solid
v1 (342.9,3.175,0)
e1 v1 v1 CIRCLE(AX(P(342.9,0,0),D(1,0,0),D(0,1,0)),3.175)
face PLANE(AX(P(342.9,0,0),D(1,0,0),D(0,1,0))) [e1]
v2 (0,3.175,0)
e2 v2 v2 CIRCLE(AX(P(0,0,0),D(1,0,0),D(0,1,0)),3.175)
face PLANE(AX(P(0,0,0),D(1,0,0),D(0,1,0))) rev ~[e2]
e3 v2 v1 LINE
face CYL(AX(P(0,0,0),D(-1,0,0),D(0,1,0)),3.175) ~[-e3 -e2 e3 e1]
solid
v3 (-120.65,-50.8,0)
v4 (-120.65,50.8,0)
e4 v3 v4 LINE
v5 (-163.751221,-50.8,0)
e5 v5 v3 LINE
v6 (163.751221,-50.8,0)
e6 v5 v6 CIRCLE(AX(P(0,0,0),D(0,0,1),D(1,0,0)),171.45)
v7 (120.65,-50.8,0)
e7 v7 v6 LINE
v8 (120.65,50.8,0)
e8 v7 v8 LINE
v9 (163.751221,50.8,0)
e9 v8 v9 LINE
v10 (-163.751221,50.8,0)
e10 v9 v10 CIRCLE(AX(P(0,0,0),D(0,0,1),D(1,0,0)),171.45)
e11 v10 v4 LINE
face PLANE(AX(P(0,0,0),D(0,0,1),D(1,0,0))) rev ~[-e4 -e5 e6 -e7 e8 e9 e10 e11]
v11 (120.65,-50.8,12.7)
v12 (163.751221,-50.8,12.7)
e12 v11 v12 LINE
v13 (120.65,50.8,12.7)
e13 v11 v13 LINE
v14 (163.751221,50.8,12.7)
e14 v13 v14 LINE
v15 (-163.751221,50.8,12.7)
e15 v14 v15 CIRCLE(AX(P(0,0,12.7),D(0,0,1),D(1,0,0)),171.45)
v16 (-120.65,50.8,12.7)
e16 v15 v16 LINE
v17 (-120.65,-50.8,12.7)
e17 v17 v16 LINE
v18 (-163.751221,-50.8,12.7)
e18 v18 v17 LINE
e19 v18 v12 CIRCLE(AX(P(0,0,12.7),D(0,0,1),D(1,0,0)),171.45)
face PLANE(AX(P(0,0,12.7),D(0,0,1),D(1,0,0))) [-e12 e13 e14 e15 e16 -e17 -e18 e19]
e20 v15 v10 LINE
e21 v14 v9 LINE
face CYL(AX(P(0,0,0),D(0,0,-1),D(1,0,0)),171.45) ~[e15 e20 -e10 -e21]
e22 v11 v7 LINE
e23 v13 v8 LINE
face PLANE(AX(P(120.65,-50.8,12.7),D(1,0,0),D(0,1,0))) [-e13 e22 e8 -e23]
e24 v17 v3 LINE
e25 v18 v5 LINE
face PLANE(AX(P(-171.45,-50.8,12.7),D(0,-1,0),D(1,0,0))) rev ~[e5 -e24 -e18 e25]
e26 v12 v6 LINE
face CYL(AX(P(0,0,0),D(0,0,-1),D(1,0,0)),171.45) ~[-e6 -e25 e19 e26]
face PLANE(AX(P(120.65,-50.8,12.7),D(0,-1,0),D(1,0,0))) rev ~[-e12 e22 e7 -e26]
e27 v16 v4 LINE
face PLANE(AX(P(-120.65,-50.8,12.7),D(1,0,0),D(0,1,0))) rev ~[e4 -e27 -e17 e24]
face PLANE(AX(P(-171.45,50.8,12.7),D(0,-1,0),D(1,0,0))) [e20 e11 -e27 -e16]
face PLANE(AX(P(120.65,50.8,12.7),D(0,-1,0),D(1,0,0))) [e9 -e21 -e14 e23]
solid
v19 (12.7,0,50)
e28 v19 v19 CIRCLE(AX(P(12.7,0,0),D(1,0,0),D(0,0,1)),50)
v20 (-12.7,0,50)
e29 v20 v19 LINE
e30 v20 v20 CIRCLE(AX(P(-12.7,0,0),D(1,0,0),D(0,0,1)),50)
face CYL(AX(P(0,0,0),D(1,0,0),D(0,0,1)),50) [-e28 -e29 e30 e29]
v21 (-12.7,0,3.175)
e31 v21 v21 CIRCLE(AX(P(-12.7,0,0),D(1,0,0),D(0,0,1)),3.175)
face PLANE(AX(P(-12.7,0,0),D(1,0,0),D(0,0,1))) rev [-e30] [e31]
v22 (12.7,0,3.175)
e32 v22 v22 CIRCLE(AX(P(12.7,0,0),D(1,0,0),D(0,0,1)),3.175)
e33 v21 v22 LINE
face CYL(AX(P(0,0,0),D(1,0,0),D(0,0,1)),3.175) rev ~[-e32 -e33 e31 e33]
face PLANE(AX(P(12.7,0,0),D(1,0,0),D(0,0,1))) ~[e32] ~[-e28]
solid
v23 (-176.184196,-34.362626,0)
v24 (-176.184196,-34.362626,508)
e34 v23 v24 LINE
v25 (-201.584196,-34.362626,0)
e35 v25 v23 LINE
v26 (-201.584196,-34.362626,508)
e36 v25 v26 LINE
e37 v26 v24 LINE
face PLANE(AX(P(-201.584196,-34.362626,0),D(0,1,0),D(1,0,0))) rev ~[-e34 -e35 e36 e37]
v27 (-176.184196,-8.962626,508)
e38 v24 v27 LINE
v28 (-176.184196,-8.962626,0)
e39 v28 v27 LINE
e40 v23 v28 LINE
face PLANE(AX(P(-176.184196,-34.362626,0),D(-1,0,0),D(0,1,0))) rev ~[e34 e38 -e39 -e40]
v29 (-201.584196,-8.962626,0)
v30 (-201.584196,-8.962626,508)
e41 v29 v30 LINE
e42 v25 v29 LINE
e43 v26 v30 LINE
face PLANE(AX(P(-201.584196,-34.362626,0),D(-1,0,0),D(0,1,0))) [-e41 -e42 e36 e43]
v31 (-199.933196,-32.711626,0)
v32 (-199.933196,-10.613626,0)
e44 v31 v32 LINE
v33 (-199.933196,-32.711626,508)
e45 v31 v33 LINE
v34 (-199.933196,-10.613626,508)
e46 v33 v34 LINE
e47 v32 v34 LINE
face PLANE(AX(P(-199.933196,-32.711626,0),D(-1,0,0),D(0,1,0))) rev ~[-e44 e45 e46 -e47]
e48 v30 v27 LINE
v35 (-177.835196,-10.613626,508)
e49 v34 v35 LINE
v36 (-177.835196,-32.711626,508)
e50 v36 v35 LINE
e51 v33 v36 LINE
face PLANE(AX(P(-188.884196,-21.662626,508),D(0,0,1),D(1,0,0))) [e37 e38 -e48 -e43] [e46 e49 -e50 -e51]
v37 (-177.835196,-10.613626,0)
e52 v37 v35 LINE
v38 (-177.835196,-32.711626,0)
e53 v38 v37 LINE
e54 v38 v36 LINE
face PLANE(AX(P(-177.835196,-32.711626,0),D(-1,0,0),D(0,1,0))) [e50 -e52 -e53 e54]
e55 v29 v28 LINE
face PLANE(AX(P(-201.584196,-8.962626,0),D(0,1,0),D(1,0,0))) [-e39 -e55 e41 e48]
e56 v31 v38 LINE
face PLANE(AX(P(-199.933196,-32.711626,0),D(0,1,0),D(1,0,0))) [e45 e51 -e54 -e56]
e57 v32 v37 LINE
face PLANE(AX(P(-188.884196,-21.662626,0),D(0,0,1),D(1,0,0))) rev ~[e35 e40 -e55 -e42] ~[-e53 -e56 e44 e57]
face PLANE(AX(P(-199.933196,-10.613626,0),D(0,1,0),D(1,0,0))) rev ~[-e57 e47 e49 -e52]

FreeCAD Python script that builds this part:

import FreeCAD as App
import Part
import Sketcher
from FreeCAD import Vector
Q = App.Units.Quantity

doc = App.newDocument("Part")
body = doc.addObject("PartDesign::Body", "Body")

# Sketch on XY plane
sketch1 = body.newObject("Sketcher::SketchObject", "Sketch")
sketch1.AttachmentSupport = (doc.getObject("XY_Plane"), [""])
sketch1.MapMode = "FlatFace"
sketch1.addGeometry(Part.Circle(Vector(0, 0, 0), Vector(0, 0, 1), 171.45), False)
sketch1.addConstraint([
    Sketcher.Constraint("Coincident", 0, 3, -1, 1),
    Sketcher.Constraint("Diameter", 0, Q("13.5 in")),
])
pad1 = body.newObject("PartDesign::Pad", "Pad")
pad1.Profile = sketch1
pad1.Length = Q("0.5 in")

# Sketch on XY plane
sketch2 = body.newObject("Sketcher::SketchObject", "Sketch001")
sketch2.AttachmentSupport = (doc.getObject("XY_Plane"), [""])
sketch2.MapMode = "FlatFace"
sketch2.AttachmentOffset = App.Placement(Vector(0, 0, 0.5 * 25.4), App.Rotation())
sketch2.addGeometry([
    Part.LineSegment(Vector(-171.45, 50.8, 0), Vector(-171.45, -50.8, 0)),  # 0
    Part.LineSegment(Vector(-171.45, -50.8, 0), Vector(-120.65, -50.8, 0)),  # 1
    Part.LineSegment(Vector(-120.65, -50.8, 0), Vector(-120.65, 50.8, 0)),  # 2
    Part.LineSegment(Vector(-120.65, 50.8, 0), Vector(-171.45, 50.8, 0)),  # 3
    Part.LineSegment(Vector(120.65, 50.8, 0), Vector(120.65, -50.8, 0)),  # 4
    Part.LineSegment(Vector(120.65, -50.8, 0), Vector(171.45, -50.8, 0)),  # 5
    Part.LineSegment(Vector(171.45, -50.8, 0), Vector(171.45, 50.8, 0)),  # 6
    Part.LineSegment(Vector(171.45, 50.8, 0), Vector(120.65, 50.8, 0)),  # 7
], False)
sketch2.addConstraint([
    Sketcher.Constraint("Coincident", 0, 2, 1, 1),
    Sketcher.Constraint("Coincident", 1, 2, 2, 1),
    Sketcher.Constraint("Coincident", 2, 2, 3, 1),
    Sketcher.Constraint("Coincident", 3, 2, 0, 1),
    Sketcher.Constraint("Coincident", 4, 2, 5, 1),
    Sketcher.Constraint("Coincident", 5, 2, 6, 1),
    Sketcher.Constraint("Coincident", 6, 2, 7, 1),
    Sketcher.Constraint("Coincident", 7, 2, 4, 1),
    Sketcher.Constraint("Vertical", 0),
    Sketcher.Constraint("Horizontal", 1),
    Sketcher.Constraint("Vertical", 2),
    Sketcher.Constraint("Horizontal", 3),
    Sketcher.Constraint("Vertical", 4),
    Sketcher.Constraint("Horizontal", 5),
    Sketcher.Constraint("Vertical", 6),
    Sketcher.Constraint("Horizontal", 7),
    Sketcher.Constraint("Symmetric", 2, 2, 4, 2, -1, 1),
    Sketcher.Constraint("Symmetric", 0, 2, 6, 2, -1, 1),
    Sketcher.Constraint("Horizontal", 1, 2, 4, 2),
    Sketcher.Constraint("DistanceX", 1, 1, 1, 2, Q("2 in")),
    Sketcher.Constraint("DistanceY", 0, 2, 0, 1, Q("4 in")),
    Sketcher.Constraint("DistanceX", 1, 2, 4, 2, Q("9.5 in")),
])
pocket1 = body.newObject("PartDesign::Pocket", "Pocket")
pocket1.Profile = sketch2
pocket1.Type = "ThroughAll"
body2 = doc.addObject("PartDesign::Body", "Body001")

# Sketch on XZ plane
sketch3 = body2.newObject("Sketcher::SketchObject", "Sketch002")
sketch3.AttachmentSupport = (doc.getObject("XZ_Plane001"), [""])
sketch3.MapMode = "FlatFace"
sketch3.addGeometry([
    Part.LineSegment(Vector(-12.7, 50, 0), Vector(-12.7, 3.175, 0)),
    Part.LineSegment(Vector(-12.7, 3.175, 0), Vector(12.7, 3.175, 0)),
    Part.LineSegment(Vector(12.7, 3.175, 0), Vector(12.7, 50, 0)),
    Part.LineSegment(Vector(12.7, 50, 0), Vector(-12.7, 50, 0)),
], False)
sketch3.addConstraint([
    Sketcher.Constraint("Coincident", 0, 2, 1, 1),
    Sketcher.Constraint("Coincident", 1, 2, 2, 1),
    Sketcher.Constraint("Coincident", 2, 2, 3, 1),
    Sketcher.Constraint("Coincident", 3, 2, 0, 1),
    Sketcher.Constraint("Vertical", 0),
    Sketcher.Constraint("Horizontal", 1),
    Sketcher.Constraint("Vertical", 2),
    Sketcher.Constraint("Horizontal", 3),
    Sketcher.Constraint("DistanceX", 1, 1, 1, 2, Q("1 in")),
    Sketcher.Constraint("DistanceX", 0, 2, -1, 1, Q("0.5 in")),
    Sketcher.Constraint("DistanceY", -1, 1, 0, 2, Q("0.125 in")),
    Sketcher.Constraint("DistanceY", 0, 2, 0, 1, Q("46.825 mm")),
])
revolution = body2.newObject("PartDesign::Revolution", "Revolution")
revolution.Profile = sketch3
revolution.ReferenceAxis = (sketch3, ["H_Axis"])
revolution.Angle = 360
body3 = doc.addObject("PartDesign::Body", "Body002")

# Sketch on YZ plane
sketch4 = body3.newObject("Sketcher::SketchObject", "Sketch003")
sketch4.AttachmentSupport = (doc.getObject("YZ_Plane002"), [""])
sketch4.MapMode = "FlatFace"
sketch4.addGeometry(Part.Circle(Vector(0, 0, 0), Vector(0, 0, 1), 3.175), False)
sketch4.addConstraint([
    Sketcher.Constraint("Coincident", 0, 3, -1, 1),
    Sketcher.Constraint("Diameter", 0, Q("0.25 in")),
])
pad2 = body3.newObject("PartDesign::Pad", "Pad001")
pad2.Profile = sketch4
pad2.Length = Q("13.5 in")
body4 = doc.addObject("PartDesign::Body", "Body003")

# Sketch on XY plane
sketch5 = body4.newObject("Sketcher::SketchObject", "Sketch004")
sketch5.AttachmentSupport = (doc.getObject("XY_Plane003"), [""])
sketch5.MapMode = "FlatFace"
sketch5.addGeometry([
    Part.LineSegment(Vector(-201.584196, -8.962626, 0), Vector(-201.584196, -34.362626, 0)),  # 0
    Part.LineSegment(Vector(-201.584196, -34.362626, 0), Vector(-176.184196, -34.362626, 0)),  # 1
    Part.LineSegment(Vector(-176.184196, -34.362626, 0), Vector(-176.184196, -8.962626, 0)),  # 2
    Part.LineSegment(Vector(-176.184196, -8.962626, 0), Vector(-201.584196, -8.962626, 0)),  # 3
    Part.LineSegment(Vector(-177.835196, -32.711626, 0), Vector(-199.933196, -32.711626, 0)),  # 4
    Part.LineSegment(Vector(-199.933196, -32.711626, 0), Vector(-199.933196, -10.613626, 0)),  # 5
    Part.LineSegment(Vector(-199.933196, -10.613626, 0), Vector(-177.835196, -10.613626, 0)),  # 6
    Part.LineSegment(Vector(-177.835196, -10.613626, 0), Vector(-177.835196, -32.711626, 0)),  # 7
], False)
sketch5.addConstraint([
    Sketcher.Constraint("Coincident", 0, 2, 1, 1),
    Sketcher.Constraint("Coincident", 1, 2, 2, 1),
    Sketcher.Constraint("Coincident", 2, 2, 3, 1),
    Sketcher.Constraint("Coincident", 3, 2, 0, 1),
    Sketcher.Constraint("Coincident", 4, 2, 5, 1),
    Sketcher.Constraint("Coincident", 5, 2, 6, 1),
    Sketcher.Constraint("Coincident", 6, 2, 7, 1),
    Sketcher.Constraint("Coincident", 7, 2, 4, 1),
    Sketcher.Constraint("Vertical", 0),
    Sketcher.Constraint("Horizontal", 1),
    Sketcher.Constraint("Vertical", 2),
    Sketcher.Constraint("Horizontal", 3),
    Sketcher.Constraint("Horizontal", 4),
    Sketcher.Constraint("Vertical", 5),
    Sketcher.Constraint("Horizontal", 6),
    Sketcher.Constraint("Vertical", 7),
    Sketcher.Constraint("Equal", 3, 0),
    Sketcher.Constraint("Equal", 6, 5),
    Sketcher.Constraint("DistanceX", 1, 1, 1, 2, Q("1 in")),
    Sketcher.Constraint("DistanceX", 4, 2, 4, 1, Q("0.87 in")),
    Sketcher.Constraint("DistanceX", 0, 2, 4, 2, Q("0.065 in")),
    Sketcher.Constraint("DistanceY", 0, 2, 4, 2, Q("0.065 in")),
    Sketcher.Constraint("DistanceX", 0, 2, -1, 1, Q("201.584196 mm")),
    Sketcher.Constraint("DistanceY", 0, 2, -1, 1, Q("34.362626 mm")),
])
pad3 = body4.newObject("PartDesign::Pad", "Pad002")
pad3.Profile = sketch5
pad3.Length = Q("20 in")

doc.recompute()
